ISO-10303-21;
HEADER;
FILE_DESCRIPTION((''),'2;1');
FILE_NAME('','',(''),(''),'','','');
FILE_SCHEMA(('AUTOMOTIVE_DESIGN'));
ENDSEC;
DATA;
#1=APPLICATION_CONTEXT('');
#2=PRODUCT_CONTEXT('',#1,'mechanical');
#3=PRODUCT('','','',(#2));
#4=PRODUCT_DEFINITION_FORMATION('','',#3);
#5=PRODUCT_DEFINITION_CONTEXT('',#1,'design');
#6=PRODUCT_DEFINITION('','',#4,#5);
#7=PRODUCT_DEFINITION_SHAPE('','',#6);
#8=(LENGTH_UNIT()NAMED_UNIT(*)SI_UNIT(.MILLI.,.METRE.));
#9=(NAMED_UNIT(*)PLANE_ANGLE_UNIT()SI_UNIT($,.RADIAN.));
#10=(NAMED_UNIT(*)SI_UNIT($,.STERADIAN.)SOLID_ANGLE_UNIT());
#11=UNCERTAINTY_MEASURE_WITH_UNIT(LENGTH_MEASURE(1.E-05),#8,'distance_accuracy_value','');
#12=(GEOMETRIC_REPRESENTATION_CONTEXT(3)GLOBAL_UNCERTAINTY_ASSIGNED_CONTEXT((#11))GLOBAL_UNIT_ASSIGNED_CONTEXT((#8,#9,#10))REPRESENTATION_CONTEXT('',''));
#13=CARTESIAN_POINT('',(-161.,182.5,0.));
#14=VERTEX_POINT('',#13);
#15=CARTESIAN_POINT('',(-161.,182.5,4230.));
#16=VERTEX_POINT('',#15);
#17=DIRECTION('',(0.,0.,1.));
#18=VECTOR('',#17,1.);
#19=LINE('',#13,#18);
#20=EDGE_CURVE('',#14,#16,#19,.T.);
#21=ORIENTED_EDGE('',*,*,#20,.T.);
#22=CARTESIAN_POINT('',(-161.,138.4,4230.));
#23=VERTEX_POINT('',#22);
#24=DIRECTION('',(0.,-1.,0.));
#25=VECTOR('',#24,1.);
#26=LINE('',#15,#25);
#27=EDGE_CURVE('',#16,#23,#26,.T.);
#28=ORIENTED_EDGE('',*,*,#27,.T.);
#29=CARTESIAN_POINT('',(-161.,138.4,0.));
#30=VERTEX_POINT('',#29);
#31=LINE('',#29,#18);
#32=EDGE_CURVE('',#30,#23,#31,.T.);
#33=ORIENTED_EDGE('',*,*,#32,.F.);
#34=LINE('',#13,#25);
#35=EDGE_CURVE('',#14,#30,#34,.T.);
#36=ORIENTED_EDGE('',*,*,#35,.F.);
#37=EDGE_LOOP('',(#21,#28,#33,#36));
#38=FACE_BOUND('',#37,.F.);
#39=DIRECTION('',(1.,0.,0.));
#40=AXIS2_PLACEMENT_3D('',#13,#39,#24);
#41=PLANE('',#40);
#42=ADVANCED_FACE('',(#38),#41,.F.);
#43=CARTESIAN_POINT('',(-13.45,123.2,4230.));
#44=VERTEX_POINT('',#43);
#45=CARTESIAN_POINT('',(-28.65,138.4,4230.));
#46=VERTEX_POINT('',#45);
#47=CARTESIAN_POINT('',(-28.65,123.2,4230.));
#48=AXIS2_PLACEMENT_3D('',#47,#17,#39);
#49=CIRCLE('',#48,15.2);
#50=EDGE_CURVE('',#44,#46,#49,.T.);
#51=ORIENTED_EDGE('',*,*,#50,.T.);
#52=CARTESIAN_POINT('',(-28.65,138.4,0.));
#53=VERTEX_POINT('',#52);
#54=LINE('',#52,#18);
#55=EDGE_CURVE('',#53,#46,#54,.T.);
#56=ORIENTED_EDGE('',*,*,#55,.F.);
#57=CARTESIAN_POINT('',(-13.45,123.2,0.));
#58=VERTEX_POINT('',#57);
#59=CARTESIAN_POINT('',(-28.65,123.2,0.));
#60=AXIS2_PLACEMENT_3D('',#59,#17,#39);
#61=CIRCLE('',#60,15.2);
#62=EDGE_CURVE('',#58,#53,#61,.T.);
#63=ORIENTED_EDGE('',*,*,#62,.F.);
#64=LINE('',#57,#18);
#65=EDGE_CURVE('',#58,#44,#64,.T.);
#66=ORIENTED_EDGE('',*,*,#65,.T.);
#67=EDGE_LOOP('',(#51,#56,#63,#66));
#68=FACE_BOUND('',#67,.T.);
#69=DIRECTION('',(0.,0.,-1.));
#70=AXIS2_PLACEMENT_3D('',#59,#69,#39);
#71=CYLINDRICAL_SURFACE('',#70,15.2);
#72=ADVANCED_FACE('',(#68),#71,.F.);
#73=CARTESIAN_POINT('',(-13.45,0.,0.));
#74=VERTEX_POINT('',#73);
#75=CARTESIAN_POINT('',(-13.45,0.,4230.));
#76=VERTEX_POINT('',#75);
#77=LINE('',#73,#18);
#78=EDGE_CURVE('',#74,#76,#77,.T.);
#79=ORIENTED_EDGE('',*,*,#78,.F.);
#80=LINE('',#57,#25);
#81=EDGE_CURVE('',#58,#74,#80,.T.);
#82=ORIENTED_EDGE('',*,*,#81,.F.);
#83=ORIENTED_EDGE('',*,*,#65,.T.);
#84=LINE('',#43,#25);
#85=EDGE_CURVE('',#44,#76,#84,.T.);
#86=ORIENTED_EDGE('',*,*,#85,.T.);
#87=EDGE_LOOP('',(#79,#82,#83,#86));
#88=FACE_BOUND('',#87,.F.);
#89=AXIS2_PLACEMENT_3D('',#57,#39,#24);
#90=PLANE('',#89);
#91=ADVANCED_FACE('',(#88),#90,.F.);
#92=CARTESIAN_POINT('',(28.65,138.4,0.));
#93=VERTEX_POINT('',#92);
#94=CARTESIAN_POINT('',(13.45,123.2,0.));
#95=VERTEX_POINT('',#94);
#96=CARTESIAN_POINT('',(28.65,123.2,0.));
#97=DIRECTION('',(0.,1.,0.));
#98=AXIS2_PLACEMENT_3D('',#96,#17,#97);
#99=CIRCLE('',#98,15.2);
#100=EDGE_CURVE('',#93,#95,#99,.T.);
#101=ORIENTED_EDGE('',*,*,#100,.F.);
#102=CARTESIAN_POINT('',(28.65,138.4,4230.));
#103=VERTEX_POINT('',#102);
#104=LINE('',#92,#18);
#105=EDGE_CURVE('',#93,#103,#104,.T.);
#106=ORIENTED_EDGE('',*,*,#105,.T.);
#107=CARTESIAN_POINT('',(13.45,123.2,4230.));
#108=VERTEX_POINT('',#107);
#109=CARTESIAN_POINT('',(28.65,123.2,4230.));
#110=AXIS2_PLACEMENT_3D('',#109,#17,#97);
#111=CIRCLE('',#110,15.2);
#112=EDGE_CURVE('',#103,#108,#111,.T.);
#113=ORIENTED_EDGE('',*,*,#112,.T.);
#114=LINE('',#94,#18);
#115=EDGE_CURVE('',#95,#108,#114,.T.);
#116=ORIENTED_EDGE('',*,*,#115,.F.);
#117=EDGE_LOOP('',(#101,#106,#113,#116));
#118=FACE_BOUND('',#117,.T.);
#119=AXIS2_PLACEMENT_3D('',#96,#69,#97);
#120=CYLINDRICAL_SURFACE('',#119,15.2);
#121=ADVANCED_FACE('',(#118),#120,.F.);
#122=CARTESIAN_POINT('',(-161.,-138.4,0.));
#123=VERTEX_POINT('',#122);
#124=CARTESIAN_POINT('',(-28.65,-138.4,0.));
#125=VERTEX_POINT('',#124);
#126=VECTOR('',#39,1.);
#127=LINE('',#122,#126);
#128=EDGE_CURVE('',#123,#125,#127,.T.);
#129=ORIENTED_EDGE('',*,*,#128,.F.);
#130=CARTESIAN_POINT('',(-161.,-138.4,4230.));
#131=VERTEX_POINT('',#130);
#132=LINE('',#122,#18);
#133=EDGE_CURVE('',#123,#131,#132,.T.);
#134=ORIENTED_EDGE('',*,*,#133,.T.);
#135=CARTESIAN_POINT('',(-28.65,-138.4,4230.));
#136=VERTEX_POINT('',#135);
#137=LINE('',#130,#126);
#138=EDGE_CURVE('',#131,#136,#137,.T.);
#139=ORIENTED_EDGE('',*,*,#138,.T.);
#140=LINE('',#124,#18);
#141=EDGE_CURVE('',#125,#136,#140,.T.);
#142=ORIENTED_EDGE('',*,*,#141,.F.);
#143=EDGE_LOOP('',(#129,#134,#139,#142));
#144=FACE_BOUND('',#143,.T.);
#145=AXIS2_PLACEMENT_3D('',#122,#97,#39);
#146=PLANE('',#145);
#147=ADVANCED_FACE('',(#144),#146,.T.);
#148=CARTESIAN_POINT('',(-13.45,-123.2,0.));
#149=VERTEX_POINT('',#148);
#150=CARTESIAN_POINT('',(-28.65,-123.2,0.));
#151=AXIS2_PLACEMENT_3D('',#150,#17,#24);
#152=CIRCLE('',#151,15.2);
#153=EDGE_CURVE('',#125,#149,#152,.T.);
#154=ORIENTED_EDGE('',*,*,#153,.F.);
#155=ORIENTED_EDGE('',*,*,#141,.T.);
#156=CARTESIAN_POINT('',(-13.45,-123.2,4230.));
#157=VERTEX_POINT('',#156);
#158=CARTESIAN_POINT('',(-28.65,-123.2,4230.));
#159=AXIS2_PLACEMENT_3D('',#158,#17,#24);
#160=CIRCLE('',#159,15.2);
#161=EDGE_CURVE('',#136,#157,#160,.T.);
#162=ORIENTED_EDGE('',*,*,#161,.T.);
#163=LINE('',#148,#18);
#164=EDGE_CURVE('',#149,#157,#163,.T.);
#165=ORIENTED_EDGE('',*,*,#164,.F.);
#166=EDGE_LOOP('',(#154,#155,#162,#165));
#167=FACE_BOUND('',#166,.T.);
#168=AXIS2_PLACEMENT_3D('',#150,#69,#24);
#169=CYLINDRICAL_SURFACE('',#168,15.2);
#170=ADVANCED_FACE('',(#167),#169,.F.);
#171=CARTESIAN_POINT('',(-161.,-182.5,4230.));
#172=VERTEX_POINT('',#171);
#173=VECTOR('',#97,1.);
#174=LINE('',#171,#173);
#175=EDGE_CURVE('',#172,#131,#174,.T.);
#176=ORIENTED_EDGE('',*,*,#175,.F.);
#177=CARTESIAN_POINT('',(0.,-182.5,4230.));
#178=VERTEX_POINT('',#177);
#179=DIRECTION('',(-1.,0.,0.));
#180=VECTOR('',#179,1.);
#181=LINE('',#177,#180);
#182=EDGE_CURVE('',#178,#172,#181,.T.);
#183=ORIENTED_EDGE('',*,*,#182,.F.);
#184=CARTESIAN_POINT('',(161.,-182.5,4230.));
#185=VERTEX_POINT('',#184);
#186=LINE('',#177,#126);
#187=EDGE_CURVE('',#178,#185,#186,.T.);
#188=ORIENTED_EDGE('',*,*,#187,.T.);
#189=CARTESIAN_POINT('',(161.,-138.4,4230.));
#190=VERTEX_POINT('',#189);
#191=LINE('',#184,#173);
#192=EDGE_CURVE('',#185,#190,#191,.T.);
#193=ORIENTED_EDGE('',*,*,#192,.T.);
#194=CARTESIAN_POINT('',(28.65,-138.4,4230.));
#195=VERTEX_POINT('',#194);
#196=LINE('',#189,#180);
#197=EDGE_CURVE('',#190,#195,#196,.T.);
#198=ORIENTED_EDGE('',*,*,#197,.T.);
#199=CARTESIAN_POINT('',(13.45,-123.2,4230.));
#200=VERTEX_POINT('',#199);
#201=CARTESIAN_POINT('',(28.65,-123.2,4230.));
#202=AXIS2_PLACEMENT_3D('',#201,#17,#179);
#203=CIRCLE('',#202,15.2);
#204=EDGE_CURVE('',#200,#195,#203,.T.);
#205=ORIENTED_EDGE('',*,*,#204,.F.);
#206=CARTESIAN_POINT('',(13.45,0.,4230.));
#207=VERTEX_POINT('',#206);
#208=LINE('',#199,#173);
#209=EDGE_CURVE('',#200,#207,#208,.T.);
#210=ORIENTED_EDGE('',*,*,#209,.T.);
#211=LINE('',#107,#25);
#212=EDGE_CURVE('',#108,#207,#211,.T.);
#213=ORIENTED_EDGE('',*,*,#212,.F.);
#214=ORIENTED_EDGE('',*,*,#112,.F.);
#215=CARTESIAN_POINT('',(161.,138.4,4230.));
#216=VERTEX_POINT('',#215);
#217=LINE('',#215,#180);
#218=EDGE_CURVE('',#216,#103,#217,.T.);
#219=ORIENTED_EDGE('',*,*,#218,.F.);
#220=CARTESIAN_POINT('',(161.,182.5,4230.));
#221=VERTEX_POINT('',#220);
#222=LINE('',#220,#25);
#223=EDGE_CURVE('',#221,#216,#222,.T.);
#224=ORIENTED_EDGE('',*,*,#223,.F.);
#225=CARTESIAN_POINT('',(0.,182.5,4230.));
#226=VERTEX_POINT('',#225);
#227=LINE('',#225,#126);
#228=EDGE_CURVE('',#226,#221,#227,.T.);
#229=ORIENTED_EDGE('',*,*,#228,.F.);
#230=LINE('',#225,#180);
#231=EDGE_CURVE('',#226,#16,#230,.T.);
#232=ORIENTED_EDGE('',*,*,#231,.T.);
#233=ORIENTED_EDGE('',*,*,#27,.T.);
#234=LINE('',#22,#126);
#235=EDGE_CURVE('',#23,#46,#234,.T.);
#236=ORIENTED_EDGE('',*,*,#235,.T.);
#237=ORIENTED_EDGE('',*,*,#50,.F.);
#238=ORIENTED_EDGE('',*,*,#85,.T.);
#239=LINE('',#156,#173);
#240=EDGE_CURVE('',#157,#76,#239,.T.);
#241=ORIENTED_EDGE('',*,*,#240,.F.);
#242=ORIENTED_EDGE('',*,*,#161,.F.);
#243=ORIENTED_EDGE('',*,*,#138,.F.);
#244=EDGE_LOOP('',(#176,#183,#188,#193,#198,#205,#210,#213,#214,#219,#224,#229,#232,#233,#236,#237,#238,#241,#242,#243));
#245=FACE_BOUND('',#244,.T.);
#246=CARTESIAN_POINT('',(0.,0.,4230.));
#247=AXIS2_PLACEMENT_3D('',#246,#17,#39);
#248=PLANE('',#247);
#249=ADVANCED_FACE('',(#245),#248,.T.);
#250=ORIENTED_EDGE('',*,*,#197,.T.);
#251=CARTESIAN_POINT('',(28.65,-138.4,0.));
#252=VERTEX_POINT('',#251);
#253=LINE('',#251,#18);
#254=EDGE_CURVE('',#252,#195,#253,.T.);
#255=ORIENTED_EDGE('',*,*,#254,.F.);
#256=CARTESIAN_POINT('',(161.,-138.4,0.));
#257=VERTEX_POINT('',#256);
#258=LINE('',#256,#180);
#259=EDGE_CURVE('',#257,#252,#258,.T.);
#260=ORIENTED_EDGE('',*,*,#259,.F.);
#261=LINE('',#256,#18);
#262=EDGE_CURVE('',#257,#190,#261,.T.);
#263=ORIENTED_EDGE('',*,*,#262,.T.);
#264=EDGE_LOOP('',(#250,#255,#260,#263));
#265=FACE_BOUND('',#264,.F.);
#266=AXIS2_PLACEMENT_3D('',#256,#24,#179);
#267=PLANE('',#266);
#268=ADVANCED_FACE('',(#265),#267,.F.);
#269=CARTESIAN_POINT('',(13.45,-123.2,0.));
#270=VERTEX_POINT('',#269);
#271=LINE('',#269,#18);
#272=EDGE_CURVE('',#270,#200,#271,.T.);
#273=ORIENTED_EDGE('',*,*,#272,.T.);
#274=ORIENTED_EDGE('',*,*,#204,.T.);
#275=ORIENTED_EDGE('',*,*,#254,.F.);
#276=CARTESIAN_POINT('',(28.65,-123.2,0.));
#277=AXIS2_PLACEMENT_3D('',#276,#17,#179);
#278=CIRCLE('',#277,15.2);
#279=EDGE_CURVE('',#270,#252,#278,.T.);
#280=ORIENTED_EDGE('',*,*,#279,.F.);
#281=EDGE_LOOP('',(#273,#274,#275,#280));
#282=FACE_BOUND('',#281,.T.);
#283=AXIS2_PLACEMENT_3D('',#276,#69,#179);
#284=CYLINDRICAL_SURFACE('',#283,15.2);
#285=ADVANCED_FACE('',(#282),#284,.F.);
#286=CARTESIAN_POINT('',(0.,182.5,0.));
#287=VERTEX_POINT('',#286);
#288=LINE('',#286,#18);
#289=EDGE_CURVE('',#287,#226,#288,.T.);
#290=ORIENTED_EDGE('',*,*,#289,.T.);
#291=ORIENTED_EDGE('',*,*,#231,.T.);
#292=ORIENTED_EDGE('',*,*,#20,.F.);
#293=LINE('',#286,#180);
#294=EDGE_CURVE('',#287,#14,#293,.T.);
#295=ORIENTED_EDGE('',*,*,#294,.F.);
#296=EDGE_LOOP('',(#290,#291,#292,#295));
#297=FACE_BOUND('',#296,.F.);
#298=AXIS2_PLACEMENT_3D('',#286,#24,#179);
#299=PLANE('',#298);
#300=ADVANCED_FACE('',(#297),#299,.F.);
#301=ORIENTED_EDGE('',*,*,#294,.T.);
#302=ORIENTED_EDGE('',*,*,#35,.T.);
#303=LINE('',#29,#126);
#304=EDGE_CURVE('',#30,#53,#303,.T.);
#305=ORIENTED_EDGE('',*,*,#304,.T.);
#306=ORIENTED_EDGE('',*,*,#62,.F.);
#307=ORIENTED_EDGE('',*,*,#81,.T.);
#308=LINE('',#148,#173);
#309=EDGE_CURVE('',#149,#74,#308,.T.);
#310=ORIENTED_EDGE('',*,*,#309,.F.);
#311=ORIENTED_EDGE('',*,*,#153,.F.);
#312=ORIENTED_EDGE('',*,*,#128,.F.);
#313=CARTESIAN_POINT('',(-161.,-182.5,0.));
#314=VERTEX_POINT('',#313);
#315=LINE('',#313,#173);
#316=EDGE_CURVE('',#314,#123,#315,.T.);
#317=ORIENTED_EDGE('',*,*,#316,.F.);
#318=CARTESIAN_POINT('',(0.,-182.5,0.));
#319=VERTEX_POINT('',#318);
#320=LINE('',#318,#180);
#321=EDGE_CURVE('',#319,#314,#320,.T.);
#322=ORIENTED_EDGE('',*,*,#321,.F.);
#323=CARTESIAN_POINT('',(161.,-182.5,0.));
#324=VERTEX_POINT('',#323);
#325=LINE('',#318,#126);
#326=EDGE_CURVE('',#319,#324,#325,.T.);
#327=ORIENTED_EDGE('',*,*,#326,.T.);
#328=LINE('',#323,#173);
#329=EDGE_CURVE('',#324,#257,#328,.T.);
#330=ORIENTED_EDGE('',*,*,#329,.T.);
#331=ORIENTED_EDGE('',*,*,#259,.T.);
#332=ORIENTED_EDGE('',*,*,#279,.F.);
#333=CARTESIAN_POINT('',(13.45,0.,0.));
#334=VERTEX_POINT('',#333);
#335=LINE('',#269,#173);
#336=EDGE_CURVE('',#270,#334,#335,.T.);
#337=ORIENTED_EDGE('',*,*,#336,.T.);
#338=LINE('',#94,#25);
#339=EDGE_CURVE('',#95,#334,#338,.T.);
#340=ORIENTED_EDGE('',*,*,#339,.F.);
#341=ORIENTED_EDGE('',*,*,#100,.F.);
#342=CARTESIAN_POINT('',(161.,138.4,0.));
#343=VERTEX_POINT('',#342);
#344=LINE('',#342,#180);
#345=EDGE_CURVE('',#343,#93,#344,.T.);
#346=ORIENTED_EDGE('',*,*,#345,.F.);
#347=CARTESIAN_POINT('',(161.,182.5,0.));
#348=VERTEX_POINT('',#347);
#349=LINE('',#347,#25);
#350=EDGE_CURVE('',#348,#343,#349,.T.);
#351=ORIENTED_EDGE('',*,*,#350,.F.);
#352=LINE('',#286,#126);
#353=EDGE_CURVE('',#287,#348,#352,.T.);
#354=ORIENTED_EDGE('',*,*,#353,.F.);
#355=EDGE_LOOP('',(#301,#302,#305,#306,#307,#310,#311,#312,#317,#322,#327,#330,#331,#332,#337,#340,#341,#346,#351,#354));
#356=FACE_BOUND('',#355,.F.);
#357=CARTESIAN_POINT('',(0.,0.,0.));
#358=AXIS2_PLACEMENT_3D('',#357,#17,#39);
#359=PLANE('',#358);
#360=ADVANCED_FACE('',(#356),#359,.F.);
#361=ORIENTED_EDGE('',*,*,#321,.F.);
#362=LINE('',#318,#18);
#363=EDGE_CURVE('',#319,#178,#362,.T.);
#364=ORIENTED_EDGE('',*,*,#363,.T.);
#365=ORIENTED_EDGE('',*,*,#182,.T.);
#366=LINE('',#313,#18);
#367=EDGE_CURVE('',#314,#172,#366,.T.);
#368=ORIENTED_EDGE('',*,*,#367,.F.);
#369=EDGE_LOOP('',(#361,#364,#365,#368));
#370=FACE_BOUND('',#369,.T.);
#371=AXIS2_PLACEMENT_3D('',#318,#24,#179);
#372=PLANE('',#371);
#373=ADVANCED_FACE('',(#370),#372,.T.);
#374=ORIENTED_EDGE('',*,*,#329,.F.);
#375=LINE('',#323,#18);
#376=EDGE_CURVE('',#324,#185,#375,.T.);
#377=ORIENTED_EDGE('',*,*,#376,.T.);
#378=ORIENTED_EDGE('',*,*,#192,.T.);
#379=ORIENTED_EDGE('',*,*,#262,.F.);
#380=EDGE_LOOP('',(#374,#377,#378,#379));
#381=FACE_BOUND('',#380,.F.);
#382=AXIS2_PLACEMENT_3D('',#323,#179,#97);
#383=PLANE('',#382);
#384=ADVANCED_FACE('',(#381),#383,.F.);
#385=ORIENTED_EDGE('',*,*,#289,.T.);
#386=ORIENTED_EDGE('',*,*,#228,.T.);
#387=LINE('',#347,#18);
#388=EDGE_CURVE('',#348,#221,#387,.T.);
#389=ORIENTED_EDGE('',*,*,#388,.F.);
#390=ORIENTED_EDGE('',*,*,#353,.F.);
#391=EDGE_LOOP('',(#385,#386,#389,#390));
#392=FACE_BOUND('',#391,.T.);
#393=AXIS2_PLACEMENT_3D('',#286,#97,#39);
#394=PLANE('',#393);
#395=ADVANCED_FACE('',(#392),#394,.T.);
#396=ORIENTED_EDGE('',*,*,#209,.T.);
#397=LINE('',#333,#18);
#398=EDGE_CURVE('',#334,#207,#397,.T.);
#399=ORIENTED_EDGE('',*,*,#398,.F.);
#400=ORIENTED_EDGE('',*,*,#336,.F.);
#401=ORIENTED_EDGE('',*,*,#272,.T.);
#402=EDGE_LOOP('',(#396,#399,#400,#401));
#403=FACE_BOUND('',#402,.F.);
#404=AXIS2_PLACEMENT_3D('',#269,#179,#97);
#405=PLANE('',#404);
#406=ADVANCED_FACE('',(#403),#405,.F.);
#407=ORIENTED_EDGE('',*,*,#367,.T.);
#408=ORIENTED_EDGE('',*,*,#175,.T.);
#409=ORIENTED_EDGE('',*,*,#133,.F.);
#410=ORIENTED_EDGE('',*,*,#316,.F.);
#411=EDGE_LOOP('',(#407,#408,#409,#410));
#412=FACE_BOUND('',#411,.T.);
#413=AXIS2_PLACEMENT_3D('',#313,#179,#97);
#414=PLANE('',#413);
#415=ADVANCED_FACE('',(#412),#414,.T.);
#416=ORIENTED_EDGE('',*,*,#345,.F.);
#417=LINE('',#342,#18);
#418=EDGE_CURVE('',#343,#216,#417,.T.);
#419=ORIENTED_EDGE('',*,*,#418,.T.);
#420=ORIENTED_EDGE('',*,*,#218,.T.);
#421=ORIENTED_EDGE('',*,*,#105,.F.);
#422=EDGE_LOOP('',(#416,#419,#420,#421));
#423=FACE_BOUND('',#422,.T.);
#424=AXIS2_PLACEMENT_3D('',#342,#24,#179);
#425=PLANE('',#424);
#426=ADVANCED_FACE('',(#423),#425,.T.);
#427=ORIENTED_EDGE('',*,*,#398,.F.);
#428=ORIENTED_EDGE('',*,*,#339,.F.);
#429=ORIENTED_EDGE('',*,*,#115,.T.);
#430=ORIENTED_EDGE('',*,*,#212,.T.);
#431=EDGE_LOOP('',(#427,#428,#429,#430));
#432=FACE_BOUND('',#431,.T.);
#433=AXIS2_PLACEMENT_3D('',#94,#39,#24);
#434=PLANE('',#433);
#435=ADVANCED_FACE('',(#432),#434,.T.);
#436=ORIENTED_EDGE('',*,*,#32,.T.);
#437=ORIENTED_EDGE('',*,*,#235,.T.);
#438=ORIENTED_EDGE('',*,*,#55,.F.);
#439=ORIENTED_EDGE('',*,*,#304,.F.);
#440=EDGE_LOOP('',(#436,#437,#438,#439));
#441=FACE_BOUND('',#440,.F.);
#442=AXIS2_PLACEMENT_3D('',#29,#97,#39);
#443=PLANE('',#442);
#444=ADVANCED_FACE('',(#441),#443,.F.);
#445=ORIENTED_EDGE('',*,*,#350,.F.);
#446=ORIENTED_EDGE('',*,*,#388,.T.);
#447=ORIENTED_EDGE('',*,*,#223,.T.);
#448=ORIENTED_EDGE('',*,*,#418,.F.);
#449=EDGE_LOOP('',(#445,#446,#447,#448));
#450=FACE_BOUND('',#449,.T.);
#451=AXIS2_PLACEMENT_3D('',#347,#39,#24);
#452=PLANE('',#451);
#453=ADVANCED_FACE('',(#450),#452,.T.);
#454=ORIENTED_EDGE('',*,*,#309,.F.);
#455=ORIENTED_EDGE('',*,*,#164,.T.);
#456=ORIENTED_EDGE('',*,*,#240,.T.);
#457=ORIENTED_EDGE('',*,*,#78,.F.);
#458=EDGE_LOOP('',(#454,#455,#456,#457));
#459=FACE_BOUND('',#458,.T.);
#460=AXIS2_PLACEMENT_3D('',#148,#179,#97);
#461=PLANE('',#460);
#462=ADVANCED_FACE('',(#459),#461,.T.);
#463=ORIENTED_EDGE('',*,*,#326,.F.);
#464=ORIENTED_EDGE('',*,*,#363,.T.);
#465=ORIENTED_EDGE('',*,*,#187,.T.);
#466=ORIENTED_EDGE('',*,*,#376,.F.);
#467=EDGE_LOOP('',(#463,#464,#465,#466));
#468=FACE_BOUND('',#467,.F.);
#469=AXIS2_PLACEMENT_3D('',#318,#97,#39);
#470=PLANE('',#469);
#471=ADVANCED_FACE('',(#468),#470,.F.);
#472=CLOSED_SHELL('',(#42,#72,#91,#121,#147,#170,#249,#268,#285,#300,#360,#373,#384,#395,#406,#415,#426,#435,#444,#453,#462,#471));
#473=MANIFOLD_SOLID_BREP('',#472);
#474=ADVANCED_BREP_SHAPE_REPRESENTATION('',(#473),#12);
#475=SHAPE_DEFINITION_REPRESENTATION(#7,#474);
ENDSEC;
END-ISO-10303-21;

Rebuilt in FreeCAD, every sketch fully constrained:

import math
import FreeCAD as App
import Part
import Sketcher

V = App.Vector
Q = App.Units.Quantity

doc = App.newDocument("Part")
body = doc.addObject("PartDesign::Body", "Body")

# Sketch on XY plane
sketch1 = body.newObject("Sketcher::SketchObject", "Sketch")
sketch1.AttachmentSupport = (doc.getObject("XY_Plane"), [""])
sketch1.MapMode = "FlatFace"
sketch1.addGeometry([
    Part.LineSegment(V(-161, -138, 0), V(-161, -182, 0)),  # 0
    Part.LineSegment(V(-161, -182, 0), V(161, -182, 0)),  # 1
    Part.LineSegment(V(161, -182, 0), V(161, -138, 0)),  # 2
    Part.LineSegment(V(161, -138, 0), V(29, -138, 0)),  # 3
    Part.ArcOfCircle(Part.Circle(V(29, -123, 0), V(0, 0, 1), 15), math.radians(180), math.radians(270)),  # 4
    Part.LineSegment(V(13, -123, 0), V(13, 123, 0)),  # 5
    Part.ArcOfCircle(Part.Circle(V(29, 123, 0), V(0, 0, 1), 15), math.radians(90), math.radians(180)),  # 6
    Part.LineSegment(V(29, 138, 0), V(161, 138, 0)),  # 7
    Part.LineSegment(V(161, 138, 0), V(161, 182, 0)),  # 8
    Part.LineSegment(V(161, 182, 0), V(-161, 182, 0)),  # 9
    Part.LineSegment(V(-161, 182, 0), V(-161, 138, 0)),  # 10
    Part.LineSegment(V(-161, 138, 0), V(-29, 138, 0)),  # 11
    Part.ArcOfCircle(Part.Circle(V(-29, 123, 0), V(0, 0, 1), 15), math.radians(0), math.radians(90)),  # 12
    Part.LineSegment(V(-13, 123, 0), V(-13, -123, 0)),  # 13
    Part.ArcOfCircle(Part.Circle(V(-29, -123, 0), V(0, 0, 1), 15), math.radians(-90), math.radians(0)),  # 14
    Part.LineSegment(V(-29, -138, 0), V(-161, -138, 0)),  # 15
], False)
sketch1.addConstraint([
    Sketcher.Constraint("Coincident", 0, 2, 1, 1),
    Sketcher.Constraint("Coincident", 1, 2, 2, 1),
    Sketcher.Constraint("Coincident", 2, 2, 3, 1),
    Sketcher.Constraint("Tangent", 3, 2, 4, 2),
    Sketcher.Constraint("Tangent", 4, 1, 5, 1),
    Sketcher.Constraint("Tangent", 5, 2, 6, 2),
    Sketcher.Constraint("Tangent", 6, 1, 7, 1),
    Sketcher.Constraint("Coincident", 7, 2, 8, 1),
    Sketcher.Constraint("Coincident", 8, 2, 9, 1),
    Sketcher.Constraint("Coincident", 9, 2, 10, 1),
    Sketcher.Constraint("Coincident", 10, 2, 11, 1),
    Sketcher.Constraint("Tangent", 11, 2, 12, 2),
    Sketcher.Constraint("Tangent", 12, 1, 13, 1),
    Sketcher.Constraint("Tangent", 13, 2, 14, 2),
    Sketcher.Constraint("Tangent", 14, 1, 15, 1),
    Sketcher.Constraint("Coincident", 15, 2, 0, 1),
    Sketcher.Constraint("Vertical", 0),
    Sketcher.Constraint("Horizontal", 1),
    Sketcher.Constraint("Vertical", 2),
    Sketcher.Constraint("Horizontal", 3),
    Sketcher.Constraint("Vertical", 5),
    Sketcher.Constraint("Horizontal", 7),
    Sketcher.Constraint("Vertical", 8),
    Sketcher.Constraint("Horizontal", 9),
    Sketcher.Constraint("Vertical", 10),
    Sketcher.Constraint("Horizontal", 11),
    Sketcher.Constraint("Vertical", 13),
    Sketcher.Constraint("Horizontal", 15),
    Sketcher.Constraint("Equal", 4, 6),
    Sketcher.Constraint("Equal", 6, 12),
    Sketcher.Constraint("Equal", 12, 14),
    Sketcher.Constraint("Symmetric", 4, 3, 12, 3, -1, 1),
    Sketcher.Constraint("Symmetric", 0, 2, 8, 2, -1, 1),
    Sketcher.Constraint("Symmetric", 7, 2, 10, 2, -2),
    Sketcher.Constraint("Symmetric", 2, 2, 15, 2, -2),
    Sketcher.Constraint("Radius", 4, Q("15.2 mm")),
    Sketcher.Constraint("DistanceY", 0, 2, 0, 1, Q("44.1 mm")),
    Sketcher.Constraint("DistanceX", 0, 2, -1, 1, Q("161 mm")),
    Sketcher.Constraint("DistanceY", 0, 2, -1, 1, Q("182.5 mm")),
    Sketcher.Constraint("DistanceX", -1, 1, 4, 1, Q("13.45 mm")),
])
pad1 = body.newObject("PartDesign::Pad", "Pad")
pad1.Profile = sketch1
pad1.Length = 4230

doc.recompute()
